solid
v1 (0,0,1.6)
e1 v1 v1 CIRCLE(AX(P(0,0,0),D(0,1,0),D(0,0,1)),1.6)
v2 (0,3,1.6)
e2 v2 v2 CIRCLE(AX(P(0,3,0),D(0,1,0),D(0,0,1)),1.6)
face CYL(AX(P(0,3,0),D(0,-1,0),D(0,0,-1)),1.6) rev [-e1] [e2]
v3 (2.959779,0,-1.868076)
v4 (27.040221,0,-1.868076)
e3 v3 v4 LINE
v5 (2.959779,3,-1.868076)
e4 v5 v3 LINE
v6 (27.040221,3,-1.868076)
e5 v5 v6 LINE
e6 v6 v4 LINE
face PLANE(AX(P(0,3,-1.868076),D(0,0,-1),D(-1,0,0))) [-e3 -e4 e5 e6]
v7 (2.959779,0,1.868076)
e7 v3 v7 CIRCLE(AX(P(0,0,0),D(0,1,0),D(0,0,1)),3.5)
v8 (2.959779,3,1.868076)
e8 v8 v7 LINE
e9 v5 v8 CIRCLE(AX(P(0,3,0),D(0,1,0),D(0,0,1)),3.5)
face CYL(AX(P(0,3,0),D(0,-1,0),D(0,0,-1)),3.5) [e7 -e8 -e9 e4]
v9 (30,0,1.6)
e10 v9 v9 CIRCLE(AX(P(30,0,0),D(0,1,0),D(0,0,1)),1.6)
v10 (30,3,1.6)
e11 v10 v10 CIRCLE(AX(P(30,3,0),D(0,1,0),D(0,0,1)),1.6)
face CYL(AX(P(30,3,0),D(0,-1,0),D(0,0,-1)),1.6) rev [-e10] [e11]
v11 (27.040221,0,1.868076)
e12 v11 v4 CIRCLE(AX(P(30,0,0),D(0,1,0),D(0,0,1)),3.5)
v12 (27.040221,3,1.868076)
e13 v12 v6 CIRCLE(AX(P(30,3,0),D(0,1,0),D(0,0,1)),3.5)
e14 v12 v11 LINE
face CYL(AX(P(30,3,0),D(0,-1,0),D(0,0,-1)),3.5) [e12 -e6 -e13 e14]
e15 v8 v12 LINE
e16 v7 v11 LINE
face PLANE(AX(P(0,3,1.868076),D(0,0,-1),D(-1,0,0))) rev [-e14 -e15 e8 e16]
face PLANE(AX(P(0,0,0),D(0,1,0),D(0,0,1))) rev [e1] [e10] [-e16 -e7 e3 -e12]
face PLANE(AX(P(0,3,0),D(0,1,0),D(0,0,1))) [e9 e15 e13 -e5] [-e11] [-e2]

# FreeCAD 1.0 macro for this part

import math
import FreeCAD as App
import Part
import Sketcher
from FreeCAD import Vector
Q = App.Units.Quantity

doc = App.newDocument("Part")
body = doc.addObject("PartDesign::Body", "Body")

# Sketch on XZ plane
sketch1 = body.newObject("Sketcher::SketchObject", "Sketch")
sketch1.AttachmentSupport = (doc.getObject("XZ_Plane"), [""])
sketch1.MapMode = "FlatFace"
sketch1.addGeometry(Part.LineSegment(Vector(27, -1.9, 0), Vector(3, -1.9, 0)), False)
sketch1.addGeometry(Part.ArcOfCircle(Part.Circle(Vector(0, 0, 0), Vector(0, 0, 1), 3.5), math.radians(32), math.radians(328)), False)
sketch1.addGeometry(Part.LineSegment(Vector(3, 1.9, 0), Vector(27, 1.9, 0)), False)
sketch1.addGeometry(Part.ArcOfCircle(Part.Circle(Vector(30, 0, 0), Vector(0, 0, 1), 3.5), math.radians(-148), math.radians(148)), False)
sketch1.addGeometry(Part.Circle(Vector(0, 0, 0), Vector(0, 0, 1), 1.6), False)
sketch1.addGeometry(Part.Circle(Vector(30, 0, 0), Vector(0, 0, 1), 1.6), False)
sketch1.addConstraint(Sketcher.Constraint("Coincident", 0, 2, 1, 2))
sketch1.addConstraint(Sketcher.Constraint("Coincident", 1, 1, 2, 1))
sketch1.addConstraint(Sketcher.Constraint("Coincident", 2, 2, 3, 2))
sketch1.addConstraint(Sketcher.Constraint("Coincident", 3, 1, 0, 1))
sketch1.addConstraint(Sketcher.Constraint("Horizontal", 0))
sketch1.addConstraint(Sketcher.Constraint("Horizontal", 2))
sketch1.addConstraint(Sketcher.Constraint("Coincident", 1, 3, -1, 1))
sketch1.addConstraint(Sketcher.Constraint("Coincident", 4, 3, -1, 1))
sketch1.addConstraint(Sketcher.Constraint("Coincident", 5, 3, 3, 3))
sketch1.addConstraint(Sketcher.Constraint("Equal", 1, 3))
sketch1.addConstraint(Sketcher.Constraint("Equal", 4, 5))
sketch1.addConstraint(Sketcher.Constraint("Symmetric", 2, 2, 3, 1, -1))
sketch1.addConstraint(Sketcher.Constraint("Diameter", 4, Q("3.2 mm")))
sketch1.addConstraint(Sketcher.Constraint("Radius", 1, Q("3.5 mm")))
sketch1.addConstraint(Sketcher.Constraint("DistanceX", -1, 1, 3, 3, Q("30 mm")))
sketch1.addConstraint(Sketcher.Constraint("DistanceX", 0, 2, 0, 1, Q("24.080442 mm")))
pad1 = body.newObject("PartDesign::Pad", "Pad")
pad1.Profile = sketch1
pad1.Length = 3
pad1.Reversed = True

doc.recompute()
